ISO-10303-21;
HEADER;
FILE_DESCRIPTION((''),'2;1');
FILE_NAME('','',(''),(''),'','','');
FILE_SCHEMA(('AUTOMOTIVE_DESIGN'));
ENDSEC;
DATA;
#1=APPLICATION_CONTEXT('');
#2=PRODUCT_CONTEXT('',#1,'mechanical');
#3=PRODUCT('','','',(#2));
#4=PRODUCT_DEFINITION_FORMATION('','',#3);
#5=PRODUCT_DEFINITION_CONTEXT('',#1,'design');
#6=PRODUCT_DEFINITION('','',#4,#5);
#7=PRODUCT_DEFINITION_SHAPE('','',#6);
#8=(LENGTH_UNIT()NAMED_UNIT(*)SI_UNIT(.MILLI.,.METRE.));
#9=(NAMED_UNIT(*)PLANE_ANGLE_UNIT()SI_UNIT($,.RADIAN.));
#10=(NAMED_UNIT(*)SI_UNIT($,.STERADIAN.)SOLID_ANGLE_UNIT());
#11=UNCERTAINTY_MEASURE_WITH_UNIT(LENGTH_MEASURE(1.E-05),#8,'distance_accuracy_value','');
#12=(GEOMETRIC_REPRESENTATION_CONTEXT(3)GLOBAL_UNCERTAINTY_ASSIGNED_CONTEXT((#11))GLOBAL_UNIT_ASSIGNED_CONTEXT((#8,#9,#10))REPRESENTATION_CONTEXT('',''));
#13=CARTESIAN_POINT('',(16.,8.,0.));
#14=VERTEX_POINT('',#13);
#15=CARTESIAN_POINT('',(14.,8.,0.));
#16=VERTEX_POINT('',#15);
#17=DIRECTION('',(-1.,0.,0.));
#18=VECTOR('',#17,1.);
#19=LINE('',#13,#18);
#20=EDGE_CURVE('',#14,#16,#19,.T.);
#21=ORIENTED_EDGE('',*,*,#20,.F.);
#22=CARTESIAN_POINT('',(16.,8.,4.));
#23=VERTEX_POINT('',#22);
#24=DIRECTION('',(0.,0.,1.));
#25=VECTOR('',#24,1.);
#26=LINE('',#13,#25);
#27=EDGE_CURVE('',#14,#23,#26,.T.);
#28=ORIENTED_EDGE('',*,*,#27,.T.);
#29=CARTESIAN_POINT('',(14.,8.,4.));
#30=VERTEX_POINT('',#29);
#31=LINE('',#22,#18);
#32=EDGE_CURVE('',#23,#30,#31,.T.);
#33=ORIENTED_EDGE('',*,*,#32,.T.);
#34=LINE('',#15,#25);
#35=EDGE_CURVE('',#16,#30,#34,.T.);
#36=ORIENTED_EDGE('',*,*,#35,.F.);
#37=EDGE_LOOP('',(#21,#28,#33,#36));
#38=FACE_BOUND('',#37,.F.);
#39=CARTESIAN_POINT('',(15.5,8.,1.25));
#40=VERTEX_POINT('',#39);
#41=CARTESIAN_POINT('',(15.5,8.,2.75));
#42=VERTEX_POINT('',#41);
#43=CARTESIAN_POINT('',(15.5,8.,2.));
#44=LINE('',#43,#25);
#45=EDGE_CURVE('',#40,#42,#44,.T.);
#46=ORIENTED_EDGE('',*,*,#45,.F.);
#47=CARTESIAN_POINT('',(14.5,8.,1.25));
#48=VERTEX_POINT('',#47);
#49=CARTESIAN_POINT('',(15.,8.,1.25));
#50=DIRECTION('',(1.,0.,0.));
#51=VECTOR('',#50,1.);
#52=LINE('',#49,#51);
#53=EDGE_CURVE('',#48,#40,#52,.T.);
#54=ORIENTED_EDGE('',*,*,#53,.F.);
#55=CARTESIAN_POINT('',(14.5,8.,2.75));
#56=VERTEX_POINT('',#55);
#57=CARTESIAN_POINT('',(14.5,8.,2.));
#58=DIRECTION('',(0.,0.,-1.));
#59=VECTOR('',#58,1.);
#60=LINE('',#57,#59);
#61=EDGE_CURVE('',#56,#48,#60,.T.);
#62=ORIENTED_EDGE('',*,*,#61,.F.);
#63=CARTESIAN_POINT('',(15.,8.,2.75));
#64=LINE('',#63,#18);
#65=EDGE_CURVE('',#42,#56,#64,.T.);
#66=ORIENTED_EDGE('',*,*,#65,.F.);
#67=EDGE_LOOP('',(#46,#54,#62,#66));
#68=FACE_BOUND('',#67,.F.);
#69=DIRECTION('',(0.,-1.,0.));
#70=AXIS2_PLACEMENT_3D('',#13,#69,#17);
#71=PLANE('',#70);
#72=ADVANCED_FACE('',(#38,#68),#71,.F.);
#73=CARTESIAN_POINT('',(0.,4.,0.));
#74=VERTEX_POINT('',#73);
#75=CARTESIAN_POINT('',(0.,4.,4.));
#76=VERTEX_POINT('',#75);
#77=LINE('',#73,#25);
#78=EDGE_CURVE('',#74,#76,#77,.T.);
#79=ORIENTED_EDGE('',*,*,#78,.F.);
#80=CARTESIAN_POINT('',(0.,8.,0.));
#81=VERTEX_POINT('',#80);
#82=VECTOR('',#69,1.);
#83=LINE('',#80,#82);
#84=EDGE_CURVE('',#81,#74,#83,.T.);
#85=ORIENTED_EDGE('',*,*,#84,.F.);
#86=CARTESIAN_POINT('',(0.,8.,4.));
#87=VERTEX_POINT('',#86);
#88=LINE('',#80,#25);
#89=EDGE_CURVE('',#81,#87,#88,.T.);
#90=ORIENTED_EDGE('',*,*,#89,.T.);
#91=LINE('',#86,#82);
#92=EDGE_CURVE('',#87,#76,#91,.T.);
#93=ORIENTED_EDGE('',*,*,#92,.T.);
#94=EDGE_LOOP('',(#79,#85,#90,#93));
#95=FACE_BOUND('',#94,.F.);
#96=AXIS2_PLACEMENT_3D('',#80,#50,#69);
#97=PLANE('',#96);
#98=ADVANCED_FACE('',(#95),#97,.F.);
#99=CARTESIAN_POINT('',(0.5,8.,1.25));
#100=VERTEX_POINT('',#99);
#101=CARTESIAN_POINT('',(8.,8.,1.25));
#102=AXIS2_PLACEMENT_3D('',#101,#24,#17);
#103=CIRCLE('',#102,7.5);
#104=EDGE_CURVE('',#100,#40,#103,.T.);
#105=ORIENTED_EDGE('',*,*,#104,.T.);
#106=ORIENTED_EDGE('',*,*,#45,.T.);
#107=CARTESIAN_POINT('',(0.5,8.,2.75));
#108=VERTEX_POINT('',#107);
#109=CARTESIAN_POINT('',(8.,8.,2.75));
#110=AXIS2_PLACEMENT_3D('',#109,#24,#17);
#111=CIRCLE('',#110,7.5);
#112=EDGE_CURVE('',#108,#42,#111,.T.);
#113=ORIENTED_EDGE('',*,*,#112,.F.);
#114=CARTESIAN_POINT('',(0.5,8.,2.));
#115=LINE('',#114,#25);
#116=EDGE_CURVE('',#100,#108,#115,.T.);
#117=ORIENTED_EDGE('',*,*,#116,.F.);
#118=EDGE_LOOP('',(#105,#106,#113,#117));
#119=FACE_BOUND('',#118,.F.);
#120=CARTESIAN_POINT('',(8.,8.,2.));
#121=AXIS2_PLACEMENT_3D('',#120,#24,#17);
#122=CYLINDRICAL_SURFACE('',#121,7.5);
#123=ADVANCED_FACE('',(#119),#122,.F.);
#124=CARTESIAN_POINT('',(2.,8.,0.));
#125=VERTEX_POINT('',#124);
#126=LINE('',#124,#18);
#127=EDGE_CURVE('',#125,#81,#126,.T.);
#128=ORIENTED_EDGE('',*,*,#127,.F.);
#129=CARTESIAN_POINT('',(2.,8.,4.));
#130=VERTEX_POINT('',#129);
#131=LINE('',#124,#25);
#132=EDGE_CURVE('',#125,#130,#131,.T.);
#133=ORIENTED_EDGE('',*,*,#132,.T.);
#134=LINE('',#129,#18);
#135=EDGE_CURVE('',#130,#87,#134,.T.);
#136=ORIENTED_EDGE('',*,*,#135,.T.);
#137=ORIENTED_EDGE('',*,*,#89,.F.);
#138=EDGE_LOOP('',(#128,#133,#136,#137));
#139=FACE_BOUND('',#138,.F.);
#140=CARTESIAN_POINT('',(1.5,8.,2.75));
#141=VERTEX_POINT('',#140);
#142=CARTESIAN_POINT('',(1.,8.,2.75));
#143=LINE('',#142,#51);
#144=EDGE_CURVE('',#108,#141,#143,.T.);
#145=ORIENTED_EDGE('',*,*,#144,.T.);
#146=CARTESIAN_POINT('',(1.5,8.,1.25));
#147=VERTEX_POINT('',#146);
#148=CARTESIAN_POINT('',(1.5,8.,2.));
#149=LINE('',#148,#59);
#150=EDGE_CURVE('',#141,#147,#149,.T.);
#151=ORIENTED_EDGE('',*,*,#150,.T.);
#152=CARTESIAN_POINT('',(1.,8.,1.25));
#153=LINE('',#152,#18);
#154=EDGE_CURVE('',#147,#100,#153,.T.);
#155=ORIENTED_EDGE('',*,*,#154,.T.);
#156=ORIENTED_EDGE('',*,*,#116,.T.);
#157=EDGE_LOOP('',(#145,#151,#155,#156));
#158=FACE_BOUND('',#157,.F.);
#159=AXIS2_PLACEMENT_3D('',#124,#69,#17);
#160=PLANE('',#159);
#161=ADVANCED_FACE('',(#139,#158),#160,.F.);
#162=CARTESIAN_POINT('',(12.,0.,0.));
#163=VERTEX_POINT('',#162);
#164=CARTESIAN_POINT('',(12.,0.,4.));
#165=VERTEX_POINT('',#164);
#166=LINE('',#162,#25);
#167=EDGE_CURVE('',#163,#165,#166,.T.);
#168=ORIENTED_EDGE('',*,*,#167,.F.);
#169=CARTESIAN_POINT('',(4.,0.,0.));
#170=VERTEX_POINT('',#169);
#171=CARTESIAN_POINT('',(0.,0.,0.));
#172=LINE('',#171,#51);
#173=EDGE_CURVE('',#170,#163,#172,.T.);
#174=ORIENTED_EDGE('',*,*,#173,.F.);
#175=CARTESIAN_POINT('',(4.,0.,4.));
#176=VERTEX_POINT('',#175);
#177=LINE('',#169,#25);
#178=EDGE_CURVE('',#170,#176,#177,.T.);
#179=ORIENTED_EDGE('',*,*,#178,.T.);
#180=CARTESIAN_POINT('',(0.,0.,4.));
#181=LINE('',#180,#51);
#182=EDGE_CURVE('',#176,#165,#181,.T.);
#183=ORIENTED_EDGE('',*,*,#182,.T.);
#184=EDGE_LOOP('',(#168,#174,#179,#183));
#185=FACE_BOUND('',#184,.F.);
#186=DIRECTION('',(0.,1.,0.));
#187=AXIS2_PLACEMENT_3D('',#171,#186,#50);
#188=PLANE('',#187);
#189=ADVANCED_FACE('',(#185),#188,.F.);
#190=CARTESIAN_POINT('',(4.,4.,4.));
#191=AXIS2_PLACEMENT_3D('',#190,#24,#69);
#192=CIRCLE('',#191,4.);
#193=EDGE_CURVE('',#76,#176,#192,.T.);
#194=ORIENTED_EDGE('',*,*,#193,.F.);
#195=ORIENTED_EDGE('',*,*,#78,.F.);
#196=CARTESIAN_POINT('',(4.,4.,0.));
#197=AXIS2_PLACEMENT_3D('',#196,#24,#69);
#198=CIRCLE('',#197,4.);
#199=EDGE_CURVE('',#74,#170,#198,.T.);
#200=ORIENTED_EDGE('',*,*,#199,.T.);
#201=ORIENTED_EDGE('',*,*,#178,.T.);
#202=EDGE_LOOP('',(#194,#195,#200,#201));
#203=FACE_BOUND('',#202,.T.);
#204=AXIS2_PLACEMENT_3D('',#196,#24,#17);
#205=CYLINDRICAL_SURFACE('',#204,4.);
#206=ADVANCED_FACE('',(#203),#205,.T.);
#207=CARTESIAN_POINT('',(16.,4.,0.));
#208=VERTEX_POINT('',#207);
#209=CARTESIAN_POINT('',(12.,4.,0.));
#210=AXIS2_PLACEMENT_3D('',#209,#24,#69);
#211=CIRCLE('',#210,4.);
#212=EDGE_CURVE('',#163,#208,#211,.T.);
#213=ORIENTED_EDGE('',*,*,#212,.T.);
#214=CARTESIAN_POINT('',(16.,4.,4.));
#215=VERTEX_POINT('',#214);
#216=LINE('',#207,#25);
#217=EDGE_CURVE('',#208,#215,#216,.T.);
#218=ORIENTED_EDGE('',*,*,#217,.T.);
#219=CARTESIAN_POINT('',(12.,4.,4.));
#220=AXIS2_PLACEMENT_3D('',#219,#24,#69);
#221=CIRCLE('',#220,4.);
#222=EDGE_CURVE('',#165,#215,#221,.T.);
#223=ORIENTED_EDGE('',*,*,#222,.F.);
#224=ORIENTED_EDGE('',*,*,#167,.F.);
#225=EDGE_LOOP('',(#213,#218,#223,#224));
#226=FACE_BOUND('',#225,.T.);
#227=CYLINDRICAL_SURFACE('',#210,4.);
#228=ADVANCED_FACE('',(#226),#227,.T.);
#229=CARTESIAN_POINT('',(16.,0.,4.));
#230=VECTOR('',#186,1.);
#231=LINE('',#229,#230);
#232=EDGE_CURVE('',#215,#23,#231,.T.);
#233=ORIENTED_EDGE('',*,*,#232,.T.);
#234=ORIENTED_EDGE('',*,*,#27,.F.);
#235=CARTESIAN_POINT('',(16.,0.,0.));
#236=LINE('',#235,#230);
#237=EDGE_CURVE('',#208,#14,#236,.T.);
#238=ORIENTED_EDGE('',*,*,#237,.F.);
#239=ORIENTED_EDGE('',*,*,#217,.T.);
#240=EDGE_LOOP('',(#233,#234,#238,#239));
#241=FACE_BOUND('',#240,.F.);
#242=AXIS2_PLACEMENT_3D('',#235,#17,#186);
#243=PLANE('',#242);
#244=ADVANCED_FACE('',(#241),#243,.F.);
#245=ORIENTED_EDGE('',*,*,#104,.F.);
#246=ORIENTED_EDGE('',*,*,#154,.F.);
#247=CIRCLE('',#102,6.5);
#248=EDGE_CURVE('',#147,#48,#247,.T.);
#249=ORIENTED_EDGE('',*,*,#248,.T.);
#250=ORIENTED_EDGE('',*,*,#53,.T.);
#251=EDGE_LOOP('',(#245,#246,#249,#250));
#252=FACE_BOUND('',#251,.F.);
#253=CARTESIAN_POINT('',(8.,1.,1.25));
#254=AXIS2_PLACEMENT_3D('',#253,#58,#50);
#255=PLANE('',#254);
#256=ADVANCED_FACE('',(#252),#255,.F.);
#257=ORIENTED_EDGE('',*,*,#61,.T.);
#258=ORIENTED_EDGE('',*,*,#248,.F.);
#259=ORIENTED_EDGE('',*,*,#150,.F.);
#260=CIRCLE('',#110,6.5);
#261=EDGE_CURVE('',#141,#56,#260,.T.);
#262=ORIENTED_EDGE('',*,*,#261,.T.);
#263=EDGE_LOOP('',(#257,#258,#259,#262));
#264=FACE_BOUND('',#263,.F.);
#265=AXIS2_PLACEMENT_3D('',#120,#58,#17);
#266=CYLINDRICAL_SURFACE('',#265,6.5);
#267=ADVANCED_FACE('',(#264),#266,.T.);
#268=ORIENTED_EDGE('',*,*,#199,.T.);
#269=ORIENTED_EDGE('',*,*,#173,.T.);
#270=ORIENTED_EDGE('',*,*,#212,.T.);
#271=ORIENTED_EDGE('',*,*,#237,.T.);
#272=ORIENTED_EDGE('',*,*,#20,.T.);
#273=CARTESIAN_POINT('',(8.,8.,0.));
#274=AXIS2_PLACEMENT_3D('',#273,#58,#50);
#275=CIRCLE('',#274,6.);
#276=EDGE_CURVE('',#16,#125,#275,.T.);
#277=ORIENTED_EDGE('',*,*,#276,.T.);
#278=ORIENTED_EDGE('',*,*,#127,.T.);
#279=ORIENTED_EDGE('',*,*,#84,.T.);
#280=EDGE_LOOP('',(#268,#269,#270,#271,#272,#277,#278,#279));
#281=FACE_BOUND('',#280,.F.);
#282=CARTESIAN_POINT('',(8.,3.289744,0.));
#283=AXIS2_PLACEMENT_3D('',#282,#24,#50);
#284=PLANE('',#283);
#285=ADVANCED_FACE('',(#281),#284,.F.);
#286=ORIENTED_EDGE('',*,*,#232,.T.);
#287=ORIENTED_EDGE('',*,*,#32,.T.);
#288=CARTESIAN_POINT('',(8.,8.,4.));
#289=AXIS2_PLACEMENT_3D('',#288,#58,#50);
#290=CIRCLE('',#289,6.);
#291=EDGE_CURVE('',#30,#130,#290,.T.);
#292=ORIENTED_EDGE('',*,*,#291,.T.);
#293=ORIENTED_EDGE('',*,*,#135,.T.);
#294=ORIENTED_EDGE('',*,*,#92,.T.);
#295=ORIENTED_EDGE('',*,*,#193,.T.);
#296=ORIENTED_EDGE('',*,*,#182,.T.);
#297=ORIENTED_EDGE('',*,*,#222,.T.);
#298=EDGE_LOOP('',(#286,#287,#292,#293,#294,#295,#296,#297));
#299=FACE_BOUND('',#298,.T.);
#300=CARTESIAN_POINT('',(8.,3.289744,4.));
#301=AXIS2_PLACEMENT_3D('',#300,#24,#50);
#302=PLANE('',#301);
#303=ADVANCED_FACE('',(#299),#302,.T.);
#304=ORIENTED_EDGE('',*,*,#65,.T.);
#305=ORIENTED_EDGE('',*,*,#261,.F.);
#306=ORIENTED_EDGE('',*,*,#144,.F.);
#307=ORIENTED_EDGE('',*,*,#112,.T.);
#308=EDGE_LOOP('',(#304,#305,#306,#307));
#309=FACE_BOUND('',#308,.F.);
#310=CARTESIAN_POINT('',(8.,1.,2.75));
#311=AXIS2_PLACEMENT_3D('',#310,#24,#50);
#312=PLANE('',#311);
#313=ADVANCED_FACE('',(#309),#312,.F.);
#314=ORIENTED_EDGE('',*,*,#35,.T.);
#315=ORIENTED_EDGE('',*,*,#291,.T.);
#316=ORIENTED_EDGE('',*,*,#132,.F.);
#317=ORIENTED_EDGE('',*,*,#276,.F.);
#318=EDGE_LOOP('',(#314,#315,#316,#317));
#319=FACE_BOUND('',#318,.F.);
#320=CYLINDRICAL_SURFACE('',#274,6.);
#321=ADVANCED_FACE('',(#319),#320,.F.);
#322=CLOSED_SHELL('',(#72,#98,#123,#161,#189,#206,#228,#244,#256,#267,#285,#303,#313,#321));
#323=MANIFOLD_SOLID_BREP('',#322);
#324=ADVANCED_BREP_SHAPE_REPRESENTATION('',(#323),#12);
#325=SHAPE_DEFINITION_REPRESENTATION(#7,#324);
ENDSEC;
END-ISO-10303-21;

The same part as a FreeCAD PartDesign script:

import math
import FreeCAD as App
import Part
import Sketcher
from FreeCAD import Vector


def edges_at(feature, points):
    """Names of the edges that pass closest to the given points."""
    edges = feature.Shape.Edges
    near = lambda p: min(range(len(edges)), key=lambda i: edges[i].distToShape(Part.Vertex(*p))[0])
    return sorted({f"Edge{near(p) + 1}" for p in points})


def add_polygon(sketch, points):
    """Adds a closed chain of lines whose ends are joined by coincident constraints."""
    first, n = sketch.GeometryCount, len(points)
    for a, b in zip(points, points[1:] + points[:1]):
        sketch.addGeometry(Part.LineSegment(App.Vector(*a, 0), App.Vector(*b, 0)), False)
    for i in range(n):
        sketch.addConstraint(Sketcher.Constraint("Coincident", first + i, 2, first + (i + 1) % n, 1))

doc = App.newDocument("Part")
body = doc.addObject("PartDesign::Body", "Body")

sketch1 = body.newObject("Sketcher::SketchObject", "Sketch")
sketch1.AttachmentSupport = (doc.getObject("XY_Plane"), [""])
sketch1.MapMode = "FlatFace"
sketch1.addGeometry([
    Part.LineSegment(Vector(0, 8, 0), Vector(0, 0, 0)),
    Part.LineSegment(Vector(0, 0, 0), Vector(16, 0, 0)),
    Part.LineSegment(Vector(16, 0, 0), Vector(16, 8, 0)),
    Part.LineSegment(Vector(16, 8, 0), Vector(14, 8, 0)),
    Part.ArcOfCircle(Part.Circle(Vector(8, 8, 0), Vector(0, 0, 1), 6), math.radians(180), math.radians(360)),
    Part.LineSegment(Vector(2, 8, 0), Vector(0, 8, 0)),
], False)
sketch1.addConstraint([
    Sketcher.Constraint("Coincident", 0, 2, 1, 1),
    Sketcher.Constraint("Coincident", 1, 2, 2, 1),
    Sketcher.Constraint("Coincident", 2, 2, 3, 1),
    Sketcher.Constraint("Coincident", 3, 2, 4, 2),
    Sketcher.Constraint("Coincident", 4, 1, 5, 1),
    Sketcher.Constraint("Coincident", 5, 2, 0, 1),
    Sketcher.Constraint("Vertical", 0),
    Sketcher.Constraint("Horizontal", 1),
    Sketcher.Constraint("Vertical", 2),
    Sketcher.Constraint("Horizontal", 3),
    Sketcher.Constraint("Horizontal", 5),
    Sketcher.Constraint("Coincident", 0, 2, -1, 1),
    Sketcher.Constraint("Horizontal", 4, 3, 2, 2),
    Sketcher.Constraint("Horizontal", 3, 2, 4, 1),
    Sketcher.Constraint("Equal", 3, 5),
    Sketcher.Constraint("Radius", 4, 6.0),
    Sketcher.Constraint("DistanceX", 1, 1, 1, 2, 16.0),
    Sketcher.Constraint("DistanceY", 0, 2, 0, 1, 8.0),
])
pad1 = body.newObject("PartDesign::Pad", "Pad")
pad1.Profile = sketch1
pad1.Length = 4
doc.recompute()

fillet = body.newObject("PartDesign::Fillet", "Fillet")
fillet.Base = (pad1, edges_at(pad1, [(16, 0, 2), (0, 0, 2)]))
fillet.Radius = 4

sketch2 = body.newObject("Sketcher::SketchObject", "Sketch001")
sketch2.AttachmentSupport = (doc.getObject("XZ_Plane"), [""])
sketch2.MapMode = "FlatFace"
sketch2.AttachmentOffset = App.Placement(Vector(0, 0, -8), App.Rotation())
add_polygon(sketch2, [(1.5, 2.75), (1.5, 1.25), (0.5, 1.25), (0.5, 2.75)])
sketch2.addConstraint([
    Sketcher.Constraint("Vertical", 0),
    Sketcher.Constraint("Horizontal", 1),
    Sketcher.Constraint("Vertical", 2),
    Sketcher.Constraint("Horizontal", 3),
    Sketcher.Constraint("DistanceX", 1, 2, 1, 1, 1.0),
    Sketcher.Constraint("DistanceY", 0, 2, 0, 1, 1.5),
    Sketcher.Constraint("DistanceX", -1, 1, 0, 2, 1.5),
    Sketcher.Constraint("DistanceY", -1, 1, 0, 2, 1.25),
])

sketch3 = body.newObject("Sketcher::SketchObject", "Sketch002")
sketch3.AttachmentSupport = (doc.getObject("XY_Plane"), [""])
sketch3.MapMode = "FlatFace"
sketch3.AttachmentOffset = App.Placement(Vector(0, 0, 2), App.Rotation())
sketch3.addGeometry(Part.ArcOfCircle(Part.Circle(Vector(8, 8, 0), Vector(0, 0, 1), 7), math.radians(180), math.radians(360)), False)
sketch3.addConstraint([
    Sketcher.Constraint("Radius", 0, 7.0),
    Sketcher.Constraint("DistanceX", -1, 1, 0, 3, 8.0),
    Sketcher.Constraint("DistanceY", -1, 1, 0, 3, 8.0),
    Sketcher.Constraint("DistanceY", -1, 1, 0, 1, 8.0),
    Sketcher.Constraint("DistanceY", -1, 1, 0, 2, 8.0),
])
doc.recompute()

subtractivepipe = body.newObject("PartDesign::SubtractivePipe", "SubtractivePipe")
subtractivepipe.Profile = sketch2
subtractivepipe.Spine = (sketch3, ["Edge1"])

doc.recompute()
